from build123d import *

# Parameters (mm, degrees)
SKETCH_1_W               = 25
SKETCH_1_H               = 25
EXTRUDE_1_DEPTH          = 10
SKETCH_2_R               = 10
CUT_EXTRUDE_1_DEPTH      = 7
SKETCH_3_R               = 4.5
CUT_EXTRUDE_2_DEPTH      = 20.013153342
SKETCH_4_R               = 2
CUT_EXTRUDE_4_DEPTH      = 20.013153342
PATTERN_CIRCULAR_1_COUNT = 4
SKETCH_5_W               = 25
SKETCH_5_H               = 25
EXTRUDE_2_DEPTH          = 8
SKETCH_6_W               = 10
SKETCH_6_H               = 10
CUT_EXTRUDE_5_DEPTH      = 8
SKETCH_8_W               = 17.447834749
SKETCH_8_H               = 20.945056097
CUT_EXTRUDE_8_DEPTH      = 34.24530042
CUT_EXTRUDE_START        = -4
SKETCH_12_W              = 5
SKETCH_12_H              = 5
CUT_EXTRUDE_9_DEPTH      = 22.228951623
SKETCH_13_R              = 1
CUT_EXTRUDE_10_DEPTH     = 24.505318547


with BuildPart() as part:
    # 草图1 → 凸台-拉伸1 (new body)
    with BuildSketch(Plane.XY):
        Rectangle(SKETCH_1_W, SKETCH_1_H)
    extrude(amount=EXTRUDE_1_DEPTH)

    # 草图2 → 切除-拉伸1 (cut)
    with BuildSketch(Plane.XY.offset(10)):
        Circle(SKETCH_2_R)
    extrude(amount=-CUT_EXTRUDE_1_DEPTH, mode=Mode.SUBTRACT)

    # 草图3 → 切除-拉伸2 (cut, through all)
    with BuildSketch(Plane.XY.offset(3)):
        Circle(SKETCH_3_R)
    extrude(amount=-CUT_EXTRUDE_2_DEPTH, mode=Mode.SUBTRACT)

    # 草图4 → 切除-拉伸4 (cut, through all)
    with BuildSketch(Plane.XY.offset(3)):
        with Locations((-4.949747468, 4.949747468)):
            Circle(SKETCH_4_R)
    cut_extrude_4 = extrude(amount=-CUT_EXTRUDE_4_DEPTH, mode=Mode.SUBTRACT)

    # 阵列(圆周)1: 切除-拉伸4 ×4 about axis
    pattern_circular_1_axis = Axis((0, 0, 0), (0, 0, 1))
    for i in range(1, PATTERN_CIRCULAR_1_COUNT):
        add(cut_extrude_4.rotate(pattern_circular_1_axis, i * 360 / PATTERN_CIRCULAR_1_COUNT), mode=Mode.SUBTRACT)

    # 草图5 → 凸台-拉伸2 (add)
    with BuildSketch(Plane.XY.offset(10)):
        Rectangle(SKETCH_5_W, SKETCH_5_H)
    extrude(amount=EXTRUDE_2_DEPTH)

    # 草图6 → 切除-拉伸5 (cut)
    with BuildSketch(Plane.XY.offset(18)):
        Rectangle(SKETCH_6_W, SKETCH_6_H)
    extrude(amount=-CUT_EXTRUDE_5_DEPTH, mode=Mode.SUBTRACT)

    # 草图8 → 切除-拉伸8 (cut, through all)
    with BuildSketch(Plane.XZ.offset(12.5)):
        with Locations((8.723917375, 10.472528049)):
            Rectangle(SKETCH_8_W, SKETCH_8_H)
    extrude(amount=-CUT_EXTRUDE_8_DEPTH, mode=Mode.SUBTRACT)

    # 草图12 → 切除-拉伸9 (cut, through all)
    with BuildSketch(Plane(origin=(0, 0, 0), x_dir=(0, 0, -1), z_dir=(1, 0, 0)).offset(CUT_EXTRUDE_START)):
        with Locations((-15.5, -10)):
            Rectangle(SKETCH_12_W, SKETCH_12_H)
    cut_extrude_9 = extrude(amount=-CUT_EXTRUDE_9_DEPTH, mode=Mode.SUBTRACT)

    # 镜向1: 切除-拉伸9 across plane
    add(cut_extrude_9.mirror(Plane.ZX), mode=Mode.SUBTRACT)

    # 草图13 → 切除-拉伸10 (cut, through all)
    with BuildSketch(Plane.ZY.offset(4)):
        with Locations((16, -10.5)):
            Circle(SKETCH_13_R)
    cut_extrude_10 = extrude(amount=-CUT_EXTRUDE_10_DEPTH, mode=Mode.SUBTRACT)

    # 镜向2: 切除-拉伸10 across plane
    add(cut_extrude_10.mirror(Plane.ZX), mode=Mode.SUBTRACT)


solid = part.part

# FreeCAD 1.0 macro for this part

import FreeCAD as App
import Part
import Sketcher
Q = App.Units.Quantity


def add_polygon(sketch, points):
    """Adds a closed chain of lines whose ends are joined by coincident constraints."""
    first, n = sketch.GeometryCount, len(points)
    for a, b in zip(points, points[1:] + points[:1]):
        sketch.addGeometry(Part.LineSegment(App.Vector(*a, 0), App.Vector(*b, 0)), False)
    for i in range(n):
        sketch.addConstraint(Sketcher.Constraint("Coincident", first + i, 2, first + (i + 1) % n, 1))

doc = App.newDocument("Part")
body = doc.addObject("PartDesign::Body", "Body")

# Sketch on XY plane
sketch1 = doc.addObject("Sketcher::SketchObject", "Sketch")
body.addObject(sketch1)
sketch1.AttachmentSupport = (doc.XY_Plane, [""])
sketch1.MapMode = "FlatFace"
add_polygon(sketch1, [(-12, 12), (-12, -12), (12, -12), (12, 12)])  # lines 0-3
sketch1.addConstraint(Sketcher.Constraint("Vertical", 0))
sketch1.addConstraint(Sketcher.Constraint("Horizontal", 1))
sketch1.addConstraint(Sketcher.Constraint("Vertical", 2))
sketch1.addConstraint(Sketcher.Constraint("Horizontal", 3))
sketch1.addConstraint(Sketcher.Constraint("Symmetric", 0, 2, 2, 2, -1, 1))
sketch1.addConstraint(Sketcher.Constraint("Equal", 3, 0))
sketch1.addConstraint(Sketcher.Constraint("DistanceX", 1, 1, 1, 2, Q("25 mm")))
pad1 = doc.addObject("PartDesign::Pad", "Pad")
body.addObject(pad1)
pad1.Profile = sketch1
pad1.Length = 10

# Sketch on XY plane
sketch2 = doc.addObject("Sketcher::SketchObject", "Sketch001")
body.addObject(sketch2)
sketch2.AttachmentSupport = (doc.XY_Plane, [""])
sketch2.MapMode = "FlatFace"
sketch2.AttachmentOffset = App.Placement(App.Vector(0, 0, 10), App.Rotation())
sketch2.addGeometry(Part.Circle(App.Vector(0, 0, 0), App.Vector(0, 0, 1), 10), False)
sketch2.addConstraint(Sketcher.Constraint("Coincident", 0, 3, -1, 1))
sketch2.addConstraint(Sketcher.Constraint("Diameter", 0, Q("20 mm")))
pocket1 = doc.addObject("PartDesign::Pocket", "Pocket")
body.addObject(pocket1)
pocket1.Profile = sketch2
pocket1.Length = 7

# Sketch on XY plane
sketch3 = doc.addObject("Sketcher::SketchObject", "Sketch002")
body.addObject(sketch3)
sketch3.AttachmentSupport = (doc.XY_Plane, [""])
sketch3.MapMode = "FlatFace"
sketch3.AttachmentOffset = App.Placement(App.Vector(0, 0, 3), App.Rotation())
sketch3.addGeometry(Part.Circle(App.Vector(0, 0, 0), App.Vector(0, 0, 1), 4.5), False)
sketch3.addConstraint(Sketcher.Constraint("Coincident", 0, 3, -1, 1))
sketch3.addConstraint(Sketcher.Constraint("Diameter", 0, Q("9 mm")))
pocket2 = doc.addObject("PartDesign::Pocket", "Pocket001")
body.addObject(pocket2)
pocket2.Profile = sketch3
pocket2.Type = "ThroughAll"

# Sketch on XY plane
sketch4 = doc.addObject("Sketcher::SketchObject", "Sketch003")
body.addObject(sketch4)
sketch4.AttachmentSupport = (doc.XY_Plane, [""])
sketch4.MapMode = "FlatFace"
sketch4.AttachmentOffset = App.Placement(App.Vector(0, 0, 3), App.Rotation())
sketch4.addGeometry(Part.Circle(App.Vector(-4.9, 4.9, 0), App.Vector(0, 0, 1), 2), False)
sketch4.addConstraint(Sketcher.Constraint("Diameter", 0, Q("4 mm")))
sketch4.addConstraint(Sketcher.Constraint("DistanceX", 0, 3, -1, 1, Q("4.949747 mm")))
sketch4.addConstraint(Sketcher.Constraint("DistanceY", -1, 1, 0, 3, Q("4.949747 mm")))
pocket3 = doc.addObject("PartDesign::Pocket", "Pocket002")
body.addObject(pocket3)
pocket3.Profile = sketch4
pocket3.Type = "ThroughAll"
doc.recompute()

polarpattern = doc.addObject("PartDesign::PolarPattern", "PolarPattern")
body.addObject(polarpattern)
polarpattern.Originals = [pocket3]
polarpattern.Axis = (doc.Z_Axis, [""])
polarpattern.Angle = 360
polarpattern.Occurrences = 4
body.Tip = polarpattern

# Sketch on XY plane
sketch5 = doc.addObject("Sketcher::SketchObject", "Sketch004")
body.addObject(sketch5)
sketch5.AttachmentSupport = (doc.XY_Plane, [""])
sketch5.MapMode = "FlatFace"
sketch5.AttachmentOffset = App.Placement(App.Vector(0, 0, 10), App.Rotation())
add_polygon(sketch5, [(-12, 12), (-12, -12), (12, -12), (12, 12)])  # lines 0-3
sketch5.addConstraint(Sketcher.Constraint("Vertical", 0))
sketch5.addConstraint(Sketcher.Constraint("Horizontal", 1))
sketch5.addConstraint(Sketcher.Constraint("Vertical", 2))
sketch5.addConstraint(Sketcher.Constraint("Horizontal", 3))
sketch5.addConstraint(Sketcher.Constraint("Symmetric", 0, 2, 2, 2, -1, 1))
sketch5.addConstraint(Sketcher.Constraint("Equal", 3, 0))
sketch5.addConstraint(Sketcher.Constraint("DistanceX", 1, 1, 1, 2, Q("25 mm")))
pad2 = doc.addObject("PartDesign::Pad", "Pad001")
body.addObject(pad2)
pad2.Profile = sketch5
pad2.Length = 8

# Sketch on XY plane
sketch6 = doc.addObject("Sketcher::SketchObject", "Sketch005")
body.addObject(sketch6)
sketch6.AttachmentSupport = (doc.XY_Plane, [""])
sketch6.MapMode = "FlatFace"
sketch6.AttachmentOffset = App.Placement(App.Vector(0, 0, 18), App.Rotation())
add_polygon(sketch6, [(-5, 5), (-5, -5), (5, -5), (5, 5)])  # lines 0-3
sketch6.addConstraint(Sketcher.Constraint("Vertical", 0))
sketch6.addConstraint(Sketcher.Constraint("Horizontal", 1))
sketch6.addConstraint(Sketcher.Constraint("Vertical", 2))
sketch6.addConstraint(Sketcher.Constraint("Horizontal", 3))
sketch6.addConstraint(Sketcher.Constraint("Symmetric", 0, 2, 2, 2, -1, 1))
sketch6.addConstraint(Sketcher.Constraint("Equal", 3, 0))
sketch6.addConstraint(Sketcher.Constraint("DistanceX", 1, 1, 1, 2, Q("10 mm")))
pocket4 = doc.addObject("PartDesign::Pocket", "Pocket003")
body.addObject(pocket4)
pocket4.Profile = sketch6
pocket4.Length = 8

# Sketch on XZ plane
sketch7 = doc.addObject("Sketcher::SketchObject", "Sketch006")
body.addObject(sketch7)
sketch7.AttachmentSupport = (doc.XZ_Plane, [""])
sketch7.MapMode = "FlatFace"
sketch7.AttachmentOffset = App.Placement(App.Vector(0, 0, 12.5), App.Rotation())
add_polygon(sketch7, [(0, 21), (0, 0), (17, 0), (17, 21)])  # lines 0-3
sketch7.addConstraint(Sketcher.Constraint("Vertical", 0))
sketch7.addConstraint(Sketcher.Constraint("Horizontal", 1))
sketch7.addConstraint(Sketcher.Constraint("Vertical", 2))
sketch7.addConstraint(Sketcher.Constraint("Horizontal", 3))
sketch7.addConstraint(Sketcher.Constraint("Coincident", 0, 2, -1, 1))
sketch7.addConstraint(Sketcher.Constraint("DistanceX", 1, 1, 1, 2, Q("17.447835 mm")))
sketch7.addConstraint(Sketcher.Constraint("DistanceY", 0, 2, 0, 1, Q("20.945056 mm")))
pocket5 = doc.addObject("PartDesign::Pocket", "Pocket004")
body.addObject(pocket5)
pocket5.Profile = sketch7
pocket5.Type = "ThroughAll"

# Sketch on YZ plane
sketch8 = doc.addObject("Sketcher::SketchObject", "Sketch007")
body.addObject(sketch8)
sketch8.AttachmentSupport = (doc.YZ_Plane, [""])
sketch8.MapMode = "FlatFace"
sketch8.AttachmentOffset = App.Placement(App.Vector(0, 0, -4), App.Rotation())
add_polygon(sketch8, [(-8, 18), (-12, 18), (-12, 13), (-8, 13)])  # lines 0-3
sketch8.addConstraint(Sketcher.Constraint("Horizontal", 0))
sketch8.addConstraint(Sketcher.Constraint("Vertical", 1))
sketch8.addConstraint(Sketcher.Constraint("Horizontal", 2))
sketch8.addConstraint(Sketcher.Constraint("Vertical", 3))
sketch8.addConstraint(Sketcher.Constraint("Equal", 2, 1))
sketch8.addConstraint(Sketcher.Constraint("DistanceX", 0, 2, 0, 1, Q("5 mm")))
sketch8.addConstraint(Sketcher.Constraint("DistanceY", -1, 1, 0, 2, Q("18 mm")))
sketch8.addConstraint(Sketcher.Constraint("DistanceX", 0, 2, -1, 1, Q("12.5 mm")))
pocket6 = doc.addObject("PartDesign::Pocket", "Pocket005")
body.addObject(pocket6)
pocket6.Profile = sketch8
pocket6.Type = "ThroughAll"
doc.recompute()

mirrored = doc.addObject("PartDesign::Mirrored", "Mirrored")
body.addObject(mirrored)
mirrored.Originals = [pocket6]
mirrored.MirrorPlane = (doc.XZ_Plane, [""])
body.Tip = mirrored

# Sketch on YZ plane
sketch9 = doc.addObject("Sketcher::SketchObject", "Sketch008")
body.addObject(sketch9)
sketch9.AttachmentSupport = (doc.YZ_Plane, [""])
sketch9.MapMode = "FlatFace"
sketch9.AttachmentOffset = App.Placement(App.Vector(0, 0, -4), App.Rotation())
sketch9.addGeometry(Part.Circle(App.Vector(-10.5, 16, 0), App.Vector(0, 0, 1), 1), False)
sketch9.addConstraint(Sketcher.Constraint("Diameter", 0, Q("2 mm")))
sketch9.addConstraint(Sketcher.Constraint("DistanceY", -1, 1, 0, 3, Q("16 mm")))
sketch9.addConstraint(Sketcher.Constraint("DistanceX", 0, 3, -1, 1, Q("10.5 mm")))
pocket7 = doc.addObject("PartDesign::Pocket", "Pocket006")
body.addObject(pocket7)
pocket7.Profile = sketch9
pocket7.Type = "ThroughAll"
pocket7.Reversed = True
doc.recompute()

mirrored2 = doc.addObject("PartDesign::Mirrored", "Mirrored001")
body.addObject(mirrored2)
mirrored2.Originals = [pocket7]
mirrored2.MirrorPlane = (doc.XZ_Plane, [""])
body.Tip = mirrored2

doc.recompute()
